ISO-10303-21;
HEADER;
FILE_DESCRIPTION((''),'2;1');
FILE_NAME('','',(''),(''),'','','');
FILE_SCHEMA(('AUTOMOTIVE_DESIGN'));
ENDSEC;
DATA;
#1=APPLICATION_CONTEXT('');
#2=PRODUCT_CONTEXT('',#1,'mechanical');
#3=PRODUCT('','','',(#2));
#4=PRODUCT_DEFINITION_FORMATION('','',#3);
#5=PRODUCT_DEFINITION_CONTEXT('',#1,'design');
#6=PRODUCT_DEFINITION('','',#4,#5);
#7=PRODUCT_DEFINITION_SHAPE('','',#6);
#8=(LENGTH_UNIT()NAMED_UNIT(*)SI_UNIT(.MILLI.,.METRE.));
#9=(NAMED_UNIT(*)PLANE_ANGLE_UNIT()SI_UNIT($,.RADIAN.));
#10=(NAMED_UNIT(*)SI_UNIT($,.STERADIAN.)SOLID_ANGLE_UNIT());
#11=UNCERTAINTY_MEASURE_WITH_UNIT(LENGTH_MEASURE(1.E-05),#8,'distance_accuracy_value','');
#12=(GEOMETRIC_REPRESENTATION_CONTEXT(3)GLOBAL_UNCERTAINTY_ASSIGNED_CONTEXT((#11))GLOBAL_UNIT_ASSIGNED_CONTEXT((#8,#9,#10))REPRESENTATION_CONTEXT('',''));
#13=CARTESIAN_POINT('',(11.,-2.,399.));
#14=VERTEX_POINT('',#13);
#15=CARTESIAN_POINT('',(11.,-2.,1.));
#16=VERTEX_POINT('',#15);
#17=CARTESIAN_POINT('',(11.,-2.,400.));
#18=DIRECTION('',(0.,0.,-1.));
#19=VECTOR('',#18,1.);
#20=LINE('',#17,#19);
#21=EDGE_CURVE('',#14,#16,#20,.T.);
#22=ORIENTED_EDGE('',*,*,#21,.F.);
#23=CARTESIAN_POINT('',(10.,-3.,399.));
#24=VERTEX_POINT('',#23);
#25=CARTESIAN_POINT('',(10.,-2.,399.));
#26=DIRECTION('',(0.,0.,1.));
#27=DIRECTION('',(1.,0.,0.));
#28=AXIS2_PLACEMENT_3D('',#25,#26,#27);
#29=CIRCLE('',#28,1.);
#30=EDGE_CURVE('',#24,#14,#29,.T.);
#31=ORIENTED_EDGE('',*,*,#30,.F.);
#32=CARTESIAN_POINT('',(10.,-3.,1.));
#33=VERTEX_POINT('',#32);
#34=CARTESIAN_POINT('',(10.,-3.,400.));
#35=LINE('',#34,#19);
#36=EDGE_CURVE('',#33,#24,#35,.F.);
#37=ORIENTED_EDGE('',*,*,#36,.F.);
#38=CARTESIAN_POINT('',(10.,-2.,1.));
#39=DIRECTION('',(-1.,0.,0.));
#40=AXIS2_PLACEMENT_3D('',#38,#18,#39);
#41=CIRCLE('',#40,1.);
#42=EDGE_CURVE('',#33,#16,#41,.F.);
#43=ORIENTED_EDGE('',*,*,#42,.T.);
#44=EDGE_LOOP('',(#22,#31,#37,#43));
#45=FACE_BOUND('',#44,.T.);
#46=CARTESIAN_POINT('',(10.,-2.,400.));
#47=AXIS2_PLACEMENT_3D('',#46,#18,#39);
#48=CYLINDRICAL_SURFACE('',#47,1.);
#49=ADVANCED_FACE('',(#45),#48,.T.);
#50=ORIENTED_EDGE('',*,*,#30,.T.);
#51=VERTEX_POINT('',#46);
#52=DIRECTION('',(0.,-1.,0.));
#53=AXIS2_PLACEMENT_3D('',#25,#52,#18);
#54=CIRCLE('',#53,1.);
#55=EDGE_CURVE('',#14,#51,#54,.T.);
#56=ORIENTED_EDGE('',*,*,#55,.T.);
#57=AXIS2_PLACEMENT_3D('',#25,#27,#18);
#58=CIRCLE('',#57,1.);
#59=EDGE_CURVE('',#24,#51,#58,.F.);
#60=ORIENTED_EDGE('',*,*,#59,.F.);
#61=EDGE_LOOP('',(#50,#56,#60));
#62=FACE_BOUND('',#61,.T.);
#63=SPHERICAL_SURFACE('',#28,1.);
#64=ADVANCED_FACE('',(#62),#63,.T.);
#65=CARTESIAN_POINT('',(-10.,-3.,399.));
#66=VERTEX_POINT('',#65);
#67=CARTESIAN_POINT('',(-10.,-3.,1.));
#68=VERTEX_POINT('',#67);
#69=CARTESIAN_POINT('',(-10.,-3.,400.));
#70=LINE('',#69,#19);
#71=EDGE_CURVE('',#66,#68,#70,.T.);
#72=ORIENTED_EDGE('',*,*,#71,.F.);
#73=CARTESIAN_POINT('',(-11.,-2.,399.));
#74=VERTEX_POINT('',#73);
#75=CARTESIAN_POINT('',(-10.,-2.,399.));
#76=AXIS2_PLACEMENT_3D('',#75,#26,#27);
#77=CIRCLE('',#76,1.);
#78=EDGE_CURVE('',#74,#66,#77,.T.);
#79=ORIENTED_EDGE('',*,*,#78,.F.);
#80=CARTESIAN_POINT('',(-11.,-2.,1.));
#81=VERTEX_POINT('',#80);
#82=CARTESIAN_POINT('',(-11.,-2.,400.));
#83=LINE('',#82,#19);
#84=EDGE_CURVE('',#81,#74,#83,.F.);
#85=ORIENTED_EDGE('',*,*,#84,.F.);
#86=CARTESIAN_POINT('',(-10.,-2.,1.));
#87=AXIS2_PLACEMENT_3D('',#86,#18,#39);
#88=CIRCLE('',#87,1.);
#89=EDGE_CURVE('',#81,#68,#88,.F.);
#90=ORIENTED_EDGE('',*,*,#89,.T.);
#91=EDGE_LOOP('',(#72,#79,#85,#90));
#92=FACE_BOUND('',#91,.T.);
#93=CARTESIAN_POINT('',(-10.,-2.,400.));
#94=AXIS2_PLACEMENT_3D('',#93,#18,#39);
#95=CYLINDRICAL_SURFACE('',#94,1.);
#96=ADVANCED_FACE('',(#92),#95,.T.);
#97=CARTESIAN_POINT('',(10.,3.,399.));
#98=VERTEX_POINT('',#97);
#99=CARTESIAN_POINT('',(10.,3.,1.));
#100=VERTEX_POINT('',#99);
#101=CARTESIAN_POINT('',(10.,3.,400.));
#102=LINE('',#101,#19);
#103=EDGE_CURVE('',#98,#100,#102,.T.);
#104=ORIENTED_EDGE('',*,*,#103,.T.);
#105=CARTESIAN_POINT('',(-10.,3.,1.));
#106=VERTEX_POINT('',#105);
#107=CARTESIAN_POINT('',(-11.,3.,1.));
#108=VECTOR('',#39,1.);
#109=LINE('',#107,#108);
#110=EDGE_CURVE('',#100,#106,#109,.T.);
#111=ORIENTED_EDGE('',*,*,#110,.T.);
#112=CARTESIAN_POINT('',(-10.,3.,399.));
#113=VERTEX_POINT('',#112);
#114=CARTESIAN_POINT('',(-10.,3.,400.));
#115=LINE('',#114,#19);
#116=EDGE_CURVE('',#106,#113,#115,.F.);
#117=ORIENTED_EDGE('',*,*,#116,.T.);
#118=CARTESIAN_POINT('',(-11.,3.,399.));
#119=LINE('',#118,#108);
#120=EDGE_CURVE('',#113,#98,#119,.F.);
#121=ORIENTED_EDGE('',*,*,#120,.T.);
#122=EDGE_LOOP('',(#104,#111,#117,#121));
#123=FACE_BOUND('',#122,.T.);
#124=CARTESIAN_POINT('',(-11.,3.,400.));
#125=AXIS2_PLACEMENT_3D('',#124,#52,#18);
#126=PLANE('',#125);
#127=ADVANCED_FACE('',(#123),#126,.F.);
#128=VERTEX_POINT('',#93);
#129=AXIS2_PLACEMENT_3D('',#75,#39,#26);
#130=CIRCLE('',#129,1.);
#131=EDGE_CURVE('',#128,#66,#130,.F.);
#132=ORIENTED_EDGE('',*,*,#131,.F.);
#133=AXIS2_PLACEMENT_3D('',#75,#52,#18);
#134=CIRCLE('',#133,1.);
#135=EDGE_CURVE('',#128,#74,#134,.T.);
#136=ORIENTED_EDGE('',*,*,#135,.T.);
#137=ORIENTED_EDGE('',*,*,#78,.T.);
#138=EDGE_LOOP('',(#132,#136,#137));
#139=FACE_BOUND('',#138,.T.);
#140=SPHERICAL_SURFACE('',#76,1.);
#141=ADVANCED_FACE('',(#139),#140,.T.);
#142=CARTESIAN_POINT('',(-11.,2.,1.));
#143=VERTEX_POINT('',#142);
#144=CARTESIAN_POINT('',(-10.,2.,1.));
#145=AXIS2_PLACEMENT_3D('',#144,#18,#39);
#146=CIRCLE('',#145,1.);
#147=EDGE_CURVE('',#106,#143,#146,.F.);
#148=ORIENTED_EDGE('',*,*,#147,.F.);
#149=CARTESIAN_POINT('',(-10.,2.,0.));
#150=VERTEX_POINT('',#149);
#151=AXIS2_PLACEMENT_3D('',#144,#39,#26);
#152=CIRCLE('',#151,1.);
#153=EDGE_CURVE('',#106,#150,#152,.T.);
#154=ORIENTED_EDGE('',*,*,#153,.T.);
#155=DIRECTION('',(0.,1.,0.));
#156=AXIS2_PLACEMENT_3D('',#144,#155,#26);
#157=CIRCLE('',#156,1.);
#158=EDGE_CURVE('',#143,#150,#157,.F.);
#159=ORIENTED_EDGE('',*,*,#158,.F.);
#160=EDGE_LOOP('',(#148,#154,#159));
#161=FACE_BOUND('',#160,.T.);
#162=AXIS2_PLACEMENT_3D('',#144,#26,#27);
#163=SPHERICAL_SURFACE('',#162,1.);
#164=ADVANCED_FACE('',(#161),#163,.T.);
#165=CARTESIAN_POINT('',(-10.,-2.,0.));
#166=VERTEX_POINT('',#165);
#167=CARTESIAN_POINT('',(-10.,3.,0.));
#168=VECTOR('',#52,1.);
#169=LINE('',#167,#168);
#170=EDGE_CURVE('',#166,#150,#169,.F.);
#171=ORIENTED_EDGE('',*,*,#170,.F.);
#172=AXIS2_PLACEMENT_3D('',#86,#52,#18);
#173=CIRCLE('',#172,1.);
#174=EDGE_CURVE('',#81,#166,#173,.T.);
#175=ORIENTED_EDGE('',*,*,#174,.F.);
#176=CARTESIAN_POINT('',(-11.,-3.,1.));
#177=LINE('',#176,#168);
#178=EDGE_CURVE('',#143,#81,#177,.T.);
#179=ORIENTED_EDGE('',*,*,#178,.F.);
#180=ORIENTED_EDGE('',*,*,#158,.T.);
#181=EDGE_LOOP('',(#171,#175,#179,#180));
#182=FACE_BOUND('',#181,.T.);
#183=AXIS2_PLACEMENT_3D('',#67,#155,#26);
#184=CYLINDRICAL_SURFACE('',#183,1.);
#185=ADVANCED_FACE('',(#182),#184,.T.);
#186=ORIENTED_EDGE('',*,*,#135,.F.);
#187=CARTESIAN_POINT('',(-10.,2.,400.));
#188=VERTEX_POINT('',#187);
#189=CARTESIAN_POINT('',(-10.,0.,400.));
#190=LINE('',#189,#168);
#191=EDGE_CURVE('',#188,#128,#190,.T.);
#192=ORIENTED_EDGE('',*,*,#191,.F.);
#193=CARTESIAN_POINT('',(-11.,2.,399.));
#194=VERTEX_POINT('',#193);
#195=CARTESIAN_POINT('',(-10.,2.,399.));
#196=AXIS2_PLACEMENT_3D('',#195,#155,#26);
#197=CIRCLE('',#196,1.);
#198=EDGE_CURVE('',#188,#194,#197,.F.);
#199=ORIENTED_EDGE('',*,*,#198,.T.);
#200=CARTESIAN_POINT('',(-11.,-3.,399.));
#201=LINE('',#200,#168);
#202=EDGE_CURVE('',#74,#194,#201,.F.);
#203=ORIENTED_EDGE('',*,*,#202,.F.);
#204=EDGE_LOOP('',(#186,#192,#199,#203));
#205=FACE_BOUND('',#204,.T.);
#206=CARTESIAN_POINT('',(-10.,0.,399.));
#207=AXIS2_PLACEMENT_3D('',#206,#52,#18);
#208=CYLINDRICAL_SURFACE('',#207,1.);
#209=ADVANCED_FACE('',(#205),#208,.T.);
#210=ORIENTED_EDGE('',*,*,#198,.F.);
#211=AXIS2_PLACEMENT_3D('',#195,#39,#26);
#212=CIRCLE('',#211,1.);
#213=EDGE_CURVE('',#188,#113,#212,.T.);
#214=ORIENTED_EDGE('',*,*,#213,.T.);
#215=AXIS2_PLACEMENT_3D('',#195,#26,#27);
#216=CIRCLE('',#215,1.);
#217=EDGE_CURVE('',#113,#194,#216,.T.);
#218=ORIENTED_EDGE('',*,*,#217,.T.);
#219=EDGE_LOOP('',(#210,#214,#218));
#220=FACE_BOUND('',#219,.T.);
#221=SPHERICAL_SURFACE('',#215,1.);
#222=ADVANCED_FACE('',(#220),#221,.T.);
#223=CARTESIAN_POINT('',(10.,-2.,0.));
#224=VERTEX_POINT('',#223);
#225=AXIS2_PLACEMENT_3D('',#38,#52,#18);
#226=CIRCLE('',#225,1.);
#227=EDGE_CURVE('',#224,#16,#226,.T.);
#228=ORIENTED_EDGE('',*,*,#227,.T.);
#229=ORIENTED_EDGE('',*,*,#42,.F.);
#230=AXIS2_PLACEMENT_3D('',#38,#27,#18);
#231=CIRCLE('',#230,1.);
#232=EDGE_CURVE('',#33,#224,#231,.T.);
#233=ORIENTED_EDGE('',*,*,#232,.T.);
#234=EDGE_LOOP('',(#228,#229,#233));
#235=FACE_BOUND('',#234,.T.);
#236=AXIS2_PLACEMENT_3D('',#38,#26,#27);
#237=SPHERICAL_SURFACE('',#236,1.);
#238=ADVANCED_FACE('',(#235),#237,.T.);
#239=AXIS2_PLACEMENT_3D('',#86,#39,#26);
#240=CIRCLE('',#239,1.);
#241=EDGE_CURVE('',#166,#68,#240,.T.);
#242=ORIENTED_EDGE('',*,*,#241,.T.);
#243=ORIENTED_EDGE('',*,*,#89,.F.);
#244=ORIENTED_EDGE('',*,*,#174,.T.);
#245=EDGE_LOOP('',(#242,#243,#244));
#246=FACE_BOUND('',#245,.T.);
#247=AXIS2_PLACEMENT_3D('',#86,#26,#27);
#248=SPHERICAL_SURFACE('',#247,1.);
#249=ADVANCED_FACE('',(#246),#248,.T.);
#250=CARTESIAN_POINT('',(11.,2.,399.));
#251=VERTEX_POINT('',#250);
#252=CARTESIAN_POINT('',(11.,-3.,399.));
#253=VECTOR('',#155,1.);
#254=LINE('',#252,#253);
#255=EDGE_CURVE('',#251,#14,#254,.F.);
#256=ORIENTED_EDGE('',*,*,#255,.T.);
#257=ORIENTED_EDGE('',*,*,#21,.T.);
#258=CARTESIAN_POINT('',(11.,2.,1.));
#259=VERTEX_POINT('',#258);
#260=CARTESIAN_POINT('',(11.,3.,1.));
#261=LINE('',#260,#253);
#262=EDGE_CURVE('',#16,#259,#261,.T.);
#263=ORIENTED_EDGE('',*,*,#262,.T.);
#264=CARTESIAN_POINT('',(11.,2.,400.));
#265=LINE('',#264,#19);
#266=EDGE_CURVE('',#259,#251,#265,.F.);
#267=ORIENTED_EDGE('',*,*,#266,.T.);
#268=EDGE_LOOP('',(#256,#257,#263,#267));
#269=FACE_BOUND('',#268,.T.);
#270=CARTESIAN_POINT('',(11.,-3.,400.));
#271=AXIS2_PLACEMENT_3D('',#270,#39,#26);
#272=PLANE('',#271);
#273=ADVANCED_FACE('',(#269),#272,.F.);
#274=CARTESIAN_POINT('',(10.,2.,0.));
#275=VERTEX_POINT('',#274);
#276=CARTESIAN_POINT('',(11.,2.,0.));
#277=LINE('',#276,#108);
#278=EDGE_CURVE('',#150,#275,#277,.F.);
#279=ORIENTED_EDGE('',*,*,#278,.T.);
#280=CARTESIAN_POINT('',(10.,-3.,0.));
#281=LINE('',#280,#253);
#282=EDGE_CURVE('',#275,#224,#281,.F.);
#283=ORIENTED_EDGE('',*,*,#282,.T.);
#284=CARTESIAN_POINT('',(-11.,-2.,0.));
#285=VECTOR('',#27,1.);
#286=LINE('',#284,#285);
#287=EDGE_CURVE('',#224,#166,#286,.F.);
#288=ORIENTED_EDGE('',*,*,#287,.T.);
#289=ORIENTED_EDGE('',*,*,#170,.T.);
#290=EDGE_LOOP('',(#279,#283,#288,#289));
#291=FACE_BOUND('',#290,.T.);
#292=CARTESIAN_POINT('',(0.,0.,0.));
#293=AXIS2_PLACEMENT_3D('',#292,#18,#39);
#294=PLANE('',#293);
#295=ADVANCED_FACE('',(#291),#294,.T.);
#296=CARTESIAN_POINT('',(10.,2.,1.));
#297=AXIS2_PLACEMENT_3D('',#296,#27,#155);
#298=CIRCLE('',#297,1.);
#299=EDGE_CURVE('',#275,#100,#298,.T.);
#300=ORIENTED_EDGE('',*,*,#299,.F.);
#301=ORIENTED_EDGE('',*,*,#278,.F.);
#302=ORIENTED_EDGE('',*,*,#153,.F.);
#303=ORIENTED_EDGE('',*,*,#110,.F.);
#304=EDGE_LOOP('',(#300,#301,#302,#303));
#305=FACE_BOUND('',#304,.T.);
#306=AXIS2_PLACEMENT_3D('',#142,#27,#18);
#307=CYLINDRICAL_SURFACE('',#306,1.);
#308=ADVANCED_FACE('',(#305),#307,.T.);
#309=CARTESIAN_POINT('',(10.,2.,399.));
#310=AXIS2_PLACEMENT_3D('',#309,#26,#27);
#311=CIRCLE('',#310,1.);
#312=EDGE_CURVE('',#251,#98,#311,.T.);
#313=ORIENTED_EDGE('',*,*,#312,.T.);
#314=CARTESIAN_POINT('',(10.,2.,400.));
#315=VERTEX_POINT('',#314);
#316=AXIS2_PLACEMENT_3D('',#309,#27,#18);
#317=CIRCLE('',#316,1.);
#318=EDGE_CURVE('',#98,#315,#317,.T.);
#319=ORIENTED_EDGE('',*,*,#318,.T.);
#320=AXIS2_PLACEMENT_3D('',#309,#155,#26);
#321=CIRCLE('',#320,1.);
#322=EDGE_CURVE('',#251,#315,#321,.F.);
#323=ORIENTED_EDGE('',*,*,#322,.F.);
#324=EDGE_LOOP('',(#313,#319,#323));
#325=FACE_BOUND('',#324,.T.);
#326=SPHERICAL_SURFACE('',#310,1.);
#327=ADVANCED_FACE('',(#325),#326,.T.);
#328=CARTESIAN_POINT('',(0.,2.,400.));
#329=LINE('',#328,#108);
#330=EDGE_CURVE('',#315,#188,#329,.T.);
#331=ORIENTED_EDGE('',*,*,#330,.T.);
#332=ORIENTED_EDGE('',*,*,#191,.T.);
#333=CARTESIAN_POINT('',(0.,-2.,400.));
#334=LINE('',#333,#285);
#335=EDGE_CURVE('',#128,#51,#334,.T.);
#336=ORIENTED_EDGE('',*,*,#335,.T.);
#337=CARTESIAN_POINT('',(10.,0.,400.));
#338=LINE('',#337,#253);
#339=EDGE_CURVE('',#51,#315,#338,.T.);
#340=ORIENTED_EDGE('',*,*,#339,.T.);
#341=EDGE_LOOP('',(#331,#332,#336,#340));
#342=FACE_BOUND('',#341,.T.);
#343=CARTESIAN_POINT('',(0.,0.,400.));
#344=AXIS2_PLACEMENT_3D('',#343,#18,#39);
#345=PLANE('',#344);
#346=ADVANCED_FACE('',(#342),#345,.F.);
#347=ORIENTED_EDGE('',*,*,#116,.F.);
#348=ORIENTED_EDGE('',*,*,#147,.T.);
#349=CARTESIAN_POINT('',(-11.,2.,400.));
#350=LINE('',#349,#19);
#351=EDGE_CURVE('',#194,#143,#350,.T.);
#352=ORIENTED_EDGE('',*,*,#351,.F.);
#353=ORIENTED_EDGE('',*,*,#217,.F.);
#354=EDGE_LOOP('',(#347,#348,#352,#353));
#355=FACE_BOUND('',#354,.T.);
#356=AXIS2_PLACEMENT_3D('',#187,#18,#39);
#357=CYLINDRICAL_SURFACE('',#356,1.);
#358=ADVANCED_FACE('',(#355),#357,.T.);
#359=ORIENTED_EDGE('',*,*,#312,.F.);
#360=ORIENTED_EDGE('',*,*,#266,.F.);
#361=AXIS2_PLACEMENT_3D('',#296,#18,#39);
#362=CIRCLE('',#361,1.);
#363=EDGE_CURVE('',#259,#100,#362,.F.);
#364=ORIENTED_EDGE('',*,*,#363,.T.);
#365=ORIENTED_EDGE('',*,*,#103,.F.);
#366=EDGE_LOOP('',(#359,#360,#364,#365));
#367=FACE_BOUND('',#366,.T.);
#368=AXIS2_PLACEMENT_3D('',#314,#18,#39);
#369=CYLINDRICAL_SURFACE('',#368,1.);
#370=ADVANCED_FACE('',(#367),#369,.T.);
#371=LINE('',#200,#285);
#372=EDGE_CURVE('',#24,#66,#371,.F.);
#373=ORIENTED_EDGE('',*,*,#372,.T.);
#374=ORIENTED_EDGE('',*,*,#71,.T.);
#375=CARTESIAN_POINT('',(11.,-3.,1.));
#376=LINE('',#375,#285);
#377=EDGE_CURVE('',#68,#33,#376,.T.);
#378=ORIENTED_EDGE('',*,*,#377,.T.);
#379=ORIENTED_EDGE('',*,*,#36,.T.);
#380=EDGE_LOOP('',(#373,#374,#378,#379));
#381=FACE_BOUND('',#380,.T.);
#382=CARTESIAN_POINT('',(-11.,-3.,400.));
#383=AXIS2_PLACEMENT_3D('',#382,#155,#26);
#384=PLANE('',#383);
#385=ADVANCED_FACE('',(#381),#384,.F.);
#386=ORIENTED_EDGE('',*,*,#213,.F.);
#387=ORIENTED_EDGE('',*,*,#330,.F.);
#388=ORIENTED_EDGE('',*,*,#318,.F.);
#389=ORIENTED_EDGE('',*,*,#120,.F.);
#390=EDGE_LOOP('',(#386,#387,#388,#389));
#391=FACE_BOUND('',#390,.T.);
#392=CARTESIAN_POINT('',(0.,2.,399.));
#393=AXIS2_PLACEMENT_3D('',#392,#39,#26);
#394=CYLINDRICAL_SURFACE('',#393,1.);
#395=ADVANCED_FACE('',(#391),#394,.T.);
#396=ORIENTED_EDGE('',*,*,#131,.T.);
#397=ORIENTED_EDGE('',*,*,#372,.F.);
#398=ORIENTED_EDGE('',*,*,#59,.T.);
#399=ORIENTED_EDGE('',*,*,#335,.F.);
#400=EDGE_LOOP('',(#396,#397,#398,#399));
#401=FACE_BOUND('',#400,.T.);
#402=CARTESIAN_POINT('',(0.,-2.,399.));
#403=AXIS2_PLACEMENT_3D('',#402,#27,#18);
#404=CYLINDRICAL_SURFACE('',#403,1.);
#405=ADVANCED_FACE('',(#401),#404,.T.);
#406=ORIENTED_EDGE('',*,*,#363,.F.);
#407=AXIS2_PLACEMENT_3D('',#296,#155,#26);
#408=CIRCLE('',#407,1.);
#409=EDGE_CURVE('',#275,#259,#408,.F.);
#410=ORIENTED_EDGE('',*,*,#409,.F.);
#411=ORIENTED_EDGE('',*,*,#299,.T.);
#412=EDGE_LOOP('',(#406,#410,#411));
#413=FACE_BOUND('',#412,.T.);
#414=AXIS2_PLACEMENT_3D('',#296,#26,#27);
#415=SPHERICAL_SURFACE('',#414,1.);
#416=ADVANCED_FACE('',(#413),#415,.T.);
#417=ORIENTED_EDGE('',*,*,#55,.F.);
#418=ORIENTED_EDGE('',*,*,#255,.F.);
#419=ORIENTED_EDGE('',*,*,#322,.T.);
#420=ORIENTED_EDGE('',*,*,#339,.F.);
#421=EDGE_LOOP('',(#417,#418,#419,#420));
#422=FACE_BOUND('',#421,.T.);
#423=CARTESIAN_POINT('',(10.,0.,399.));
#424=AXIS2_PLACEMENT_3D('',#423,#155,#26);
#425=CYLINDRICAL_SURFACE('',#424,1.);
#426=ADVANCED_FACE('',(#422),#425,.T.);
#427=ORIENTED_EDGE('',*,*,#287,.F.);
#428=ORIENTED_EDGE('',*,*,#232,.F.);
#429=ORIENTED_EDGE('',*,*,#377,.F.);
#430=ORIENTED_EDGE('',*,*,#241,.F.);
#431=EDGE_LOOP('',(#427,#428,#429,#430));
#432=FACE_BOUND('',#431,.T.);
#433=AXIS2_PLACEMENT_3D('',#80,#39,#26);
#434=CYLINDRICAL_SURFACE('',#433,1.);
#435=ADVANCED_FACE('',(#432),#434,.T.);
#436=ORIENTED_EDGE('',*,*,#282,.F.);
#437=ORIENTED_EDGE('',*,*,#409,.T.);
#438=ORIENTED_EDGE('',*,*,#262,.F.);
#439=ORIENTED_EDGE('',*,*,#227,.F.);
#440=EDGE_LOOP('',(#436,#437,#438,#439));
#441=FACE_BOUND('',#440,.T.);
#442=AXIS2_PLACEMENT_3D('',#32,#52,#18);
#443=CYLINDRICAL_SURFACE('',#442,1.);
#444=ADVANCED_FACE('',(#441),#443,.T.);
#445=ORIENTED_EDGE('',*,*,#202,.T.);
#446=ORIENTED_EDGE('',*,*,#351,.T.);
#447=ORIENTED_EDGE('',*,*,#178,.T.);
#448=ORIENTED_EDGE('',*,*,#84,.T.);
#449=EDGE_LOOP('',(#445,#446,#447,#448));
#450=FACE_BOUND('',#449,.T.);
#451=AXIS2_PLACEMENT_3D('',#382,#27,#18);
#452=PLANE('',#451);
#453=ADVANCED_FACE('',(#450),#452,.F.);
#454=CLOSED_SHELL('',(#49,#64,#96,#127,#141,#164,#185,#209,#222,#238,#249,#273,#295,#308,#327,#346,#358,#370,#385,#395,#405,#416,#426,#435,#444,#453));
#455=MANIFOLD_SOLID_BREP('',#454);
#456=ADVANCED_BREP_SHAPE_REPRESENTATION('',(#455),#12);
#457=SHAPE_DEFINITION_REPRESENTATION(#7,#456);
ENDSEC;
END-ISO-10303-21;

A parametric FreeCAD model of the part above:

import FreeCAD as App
import Part
import Sketcher


def add_polygon(sketch, points):
    """Adds a closed chain of lines whose ends are joined by coincident constraints."""
    first, n = sketch.GeometryCount, len(points)
    for a, b in zip(points, points[1:] + points[:1]):
        sketch.addGeometry(Part.LineSegment(App.Vector(*a, 0), App.Vector(*b, 0)), False)
    for i in range(n):
        sketch.addConstraint(Sketcher.Constraint("Coincident", first + i, 2, first + (i + 1) % n, 1))

doc = App.newDocument("Part")
body = doc.addObject("PartDesign::Body", "Body")

# Sketch on XY plane
sketch1 = doc.addObject("Sketcher::SketchObject", "Sketch")
body.addObject(sketch1)
sketch1.AttachmentSupport = (doc.XY_Plane, [""])
sketch1.MapMode = "FlatFace"
add_polygon(sketch1, [(-11, 3), (-11, -3), (11, -3), (11, 3)])  # lines 0-3
sketch1.addConstraint(Sketcher.Constraint("Vertical", 0))
sketch1.addConstraint(Sketcher.Constraint("Horizontal", 1))
sketch1.addConstraint(Sketcher.Constraint("Vertical", 2))
sketch1.addConstraint(Sketcher.Constraint("Horizontal", 3))
sketch1.addConstraint(Sketcher.Constraint("Symmetric", 0, 2, 2, 2, -1, 1))
sketch1.addConstraint(Sketcher.Constraint("DistanceX", 1, 1, 1, 2, 22.0))
sketch1.addConstraint(Sketcher.Constraint("DistanceY", 0, 2, 0, 1, 6.0))
pad1 = doc.addObject("PartDesign::Pad", "Pad")
body.addObject(pad1)
pad1.Profile = sketch1
pad1.Length = 400
doc.recompute()

fillet = doc.addObject("PartDesign::Fillet", "Fillet")
body.addObject(fillet)
fillet.Base = (pad1, ["Edge1"])
fillet.UseAllEdges = True
fillet.Radius = 1

doc.recompute()
